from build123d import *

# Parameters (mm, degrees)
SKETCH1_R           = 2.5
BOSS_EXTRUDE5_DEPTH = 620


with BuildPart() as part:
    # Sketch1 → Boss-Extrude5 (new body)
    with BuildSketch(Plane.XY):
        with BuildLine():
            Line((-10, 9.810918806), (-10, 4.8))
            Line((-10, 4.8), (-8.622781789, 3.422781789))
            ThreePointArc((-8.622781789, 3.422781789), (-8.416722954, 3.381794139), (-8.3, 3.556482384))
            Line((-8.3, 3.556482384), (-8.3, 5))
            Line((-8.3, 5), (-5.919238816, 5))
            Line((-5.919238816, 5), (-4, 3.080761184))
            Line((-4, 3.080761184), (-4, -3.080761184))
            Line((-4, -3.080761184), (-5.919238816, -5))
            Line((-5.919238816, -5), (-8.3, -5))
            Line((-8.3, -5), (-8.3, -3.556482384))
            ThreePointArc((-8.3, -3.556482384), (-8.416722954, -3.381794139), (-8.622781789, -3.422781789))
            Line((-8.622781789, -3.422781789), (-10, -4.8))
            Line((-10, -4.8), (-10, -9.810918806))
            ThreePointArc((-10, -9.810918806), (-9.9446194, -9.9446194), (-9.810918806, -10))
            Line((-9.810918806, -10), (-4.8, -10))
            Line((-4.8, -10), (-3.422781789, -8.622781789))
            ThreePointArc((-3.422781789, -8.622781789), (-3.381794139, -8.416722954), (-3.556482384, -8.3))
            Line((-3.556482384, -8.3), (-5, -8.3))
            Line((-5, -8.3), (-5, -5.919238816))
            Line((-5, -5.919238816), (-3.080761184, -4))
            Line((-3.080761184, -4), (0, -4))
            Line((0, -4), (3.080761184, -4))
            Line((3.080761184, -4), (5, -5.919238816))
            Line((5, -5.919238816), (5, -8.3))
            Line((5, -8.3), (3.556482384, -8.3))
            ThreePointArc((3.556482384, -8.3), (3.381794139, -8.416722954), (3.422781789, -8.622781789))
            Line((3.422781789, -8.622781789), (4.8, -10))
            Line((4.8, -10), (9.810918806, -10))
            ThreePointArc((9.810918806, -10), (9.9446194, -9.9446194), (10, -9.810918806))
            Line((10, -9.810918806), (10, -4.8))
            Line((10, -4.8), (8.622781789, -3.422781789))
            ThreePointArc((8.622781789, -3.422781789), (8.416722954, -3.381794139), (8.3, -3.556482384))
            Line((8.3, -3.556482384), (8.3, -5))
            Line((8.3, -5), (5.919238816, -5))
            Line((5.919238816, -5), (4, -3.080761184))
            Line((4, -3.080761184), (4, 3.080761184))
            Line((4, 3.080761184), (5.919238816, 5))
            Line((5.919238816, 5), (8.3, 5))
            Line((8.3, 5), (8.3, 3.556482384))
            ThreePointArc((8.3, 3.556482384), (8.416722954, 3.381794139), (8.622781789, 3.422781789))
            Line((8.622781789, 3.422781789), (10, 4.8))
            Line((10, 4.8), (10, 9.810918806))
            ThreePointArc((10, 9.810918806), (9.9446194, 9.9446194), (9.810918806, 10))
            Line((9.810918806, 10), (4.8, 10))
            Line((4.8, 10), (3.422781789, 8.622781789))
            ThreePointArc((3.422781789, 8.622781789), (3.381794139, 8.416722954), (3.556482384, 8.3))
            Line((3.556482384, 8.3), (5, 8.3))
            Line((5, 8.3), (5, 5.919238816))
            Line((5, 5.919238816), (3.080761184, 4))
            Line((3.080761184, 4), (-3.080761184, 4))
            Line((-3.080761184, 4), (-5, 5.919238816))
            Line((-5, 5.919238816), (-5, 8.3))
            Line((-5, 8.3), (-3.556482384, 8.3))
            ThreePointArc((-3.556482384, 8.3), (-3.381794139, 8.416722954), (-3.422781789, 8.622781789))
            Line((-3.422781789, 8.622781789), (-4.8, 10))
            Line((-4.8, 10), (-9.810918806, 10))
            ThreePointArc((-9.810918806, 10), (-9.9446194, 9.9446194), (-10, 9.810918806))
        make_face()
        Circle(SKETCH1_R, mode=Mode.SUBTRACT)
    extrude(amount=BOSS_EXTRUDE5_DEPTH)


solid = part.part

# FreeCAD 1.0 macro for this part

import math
import FreeCAD as App
import Part
import Sketcher
Q = App.Units.Quantity

doc = App.newDocument("Part")
body = doc.addObject("PartDesign::Body", "Body")

sketch1 = doc.addObject("Sketcher::SketchObject", "Sketch")
body.addObject(sketch1)
sketch1.AttachmentSupport = (doc.XY_Plane, [""])
sketch1.MapMode = "FlatFace"
sketch1.addGeometry([
    Part.LineSegment(App.Vector(-10, 9.81, 0), App.Vector(-10, 4.8, 0)),
    Part.LineSegment(App.Vector(-10, 4.8, 0), App.Vector(-8.62, 3.42, 0)),
    Part.ArcOfCircle(Part.Circle(App.Vector(-8.49, 3.56, 0), App.Vector(0, 0, 1), 0.19), math.radians(-135), math.radians(0)),
    Part.LineSegment(App.Vector(-8.3, 3.56, 0), App.Vector(-8.3, 5, 0)),
    Part.LineSegment(App.Vector(-8.3, 5, 0), App.Vector(-5.92, 5, 0)),
    Part.LineSegment(App.Vector(-5.92, 5, 0), App.Vector(-4, 3.08, 0)),
    Part.LineSegment(App.Vector(-4, 3.08, 0), App.Vector(-4, -3.08, 0)),
    Part.LineSegment(App.Vector(-4, -3.08, 0), App.Vector(-5.92, -5, 0)),
    Part.LineSegment(App.Vector(-5.92, -5, 0), App.Vector(-8.3, -5, 0)),
    Part.LineSegment(App.Vector(-8.3, -5, 0), App.Vector(-8.3, -3.56, 0)),
    Part.ArcOfCircle(Part.Circle(App.Vector(-8.49, -3.56, 0), App.Vector(0, 0, 1), 0.19), math.radians(0), math.radians(135)),
    Part.LineSegment(App.Vector(-8.62, -3.42, 0), App.Vector(-10, -4.8, 0)),
    Part.LineSegment(App.Vector(-10, -4.8, 0), App.Vector(-10, -9.81, 0)),
    Part.ArcOfCircle(Part.Circle(App.Vector(-9.81, -9.81, 0), App.Vector(0, 0, 1), 0.19), math.radians(-180), math.radians(-90)),
    Part.LineSegment(App.Vector(-9.81, -10, 0), App.Vector(-4.8, -10, 0)),
    Part.LineSegment(App.Vector(-4.8, -10, 0), App.Vector(-3.42, -8.62, 0)),
    Part.ArcOfCircle(Part.Circle(App.Vector(-3.56, -8.49, 0), App.Vector(0, 0, 1), 0.19), math.radians(-45), math.radians(90)),
    Part.LineSegment(App.Vector(-3.56, -8.3, 0), App.Vector(-5, -8.3, 0)),
    Part.LineSegment(App.Vector(-5, -8.3, 0), App.Vector(-5, -5.92, 0)),
    Part.LineSegment(App.Vector(-5, -5.92, 0), App.Vector(-3.08, -4, 0)),
    Part.LineSegment(App.Vector(-3.08, -4, 0), App.Vector(3.08, -4, 0)),
    Part.LineSegment(App.Vector(3.08, -4, 0), App.Vector(5, -5.92, 0)),
    Part.LineSegment(App.Vector(5, -5.92, 0), App.Vector(5, -8.3, 0)),
    Part.LineSegment(App.Vector(5, -8.3, 0), App.Vector(3.56, -8.3, 0)),
    Part.ArcOfCircle(Part.Circle(App.Vector(3.56, -8.49, 0), App.Vector(0, 0, 1), 0.19), math.radians(90), math.radians(225)),
    Part.LineSegment(App.Vector(3.42, -8.62, 0), App.Vector(4.8, -10, 0)),
    Part.LineSegment(App.Vector(4.8, -10, 0), App.Vector(9.81, -10, 0)),
    Part.ArcOfCircle(Part.Circle(App.Vector(9.81, -9.81, 0), App.Vector(0, 0, 1), 0.19), math.radians(-90), math.radians(0)),
    Part.LineSegment(App.Vector(10, -9.81, 0), App.Vector(10, -4.8, 0)),
    Part.LineSegment(App.Vector(10, -4.8, 0), App.Vector(8.62, -3.42, 0)),
    Part.ArcOfCircle(Part.Circle(App.Vector(8.49, -3.56, 0), App.Vector(0, 0, 1), 0.19), math.radians(45), math.radians(180)),
    Part.LineSegment(App.Vector(8.3, -3.56, 0), App.Vector(8.3, -5, 0)),
    Part.LineSegment(App.Vector(8.3, -5, 0), App.Vector(5.92, -5, 0)),
    Part.LineSegment(App.Vector(5.92, -5, 0), App.Vector(4, -3.08, 0)),
    Part.LineSegment(App.Vector(4, -3.08, 0), App.Vector(4, 3.08, 0)),
    Part.LineSegment(App.Vector(4, 3.08, 0), App.Vector(5.92, 5, 0)),
    Part.LineSegment(App.Vector(5.92, 5, 0), App.Vector(8.3, 5, 0)),
    Part.LineSegment(App.Vector(8.3, 5, 0), App.Vector(8.3, 3.56, 0)),
    Part.ArcOfCircle(Part.Circle(App.Vector(8.49, 3.56, 0), App.Vector(0, 0, 1), 0.19), math.radians(-180), math.radians(-45)),
    Part.LineSegment(App.Vector(8.62, 3.42, 0), App.Vector(10, 4.8, 0)),
    Part.LineSegment(App.Vector(10, 4.8, 0), App.Vector(10, 9.81, 0)),
    Part.ArcOfCircle(Part.Circle(App.Vector(9.81, 9.81, 0), App.Vector(0, 0, 1), 0.19), math.radians(0), math.radians(90)),
    Part.LineSegment(App.Vector(9.81, 10, 0), App.Vector(4.8, 10, 0)),
    Part.LineSegment(App.Vector(4.8, 10, 0), App.Vector(3.42, 8.62, 0)),
    Part.ArcOfCircle(Part.Circle(App.Vector(3.56, 8.49, 0), App.Vector(0, 0, 1), 0.19), math.radians(135), math.radians(270)),
    Part.LineSegment(App.Vector(3.56, 8.3, 0), App.Vector(5, 8.3, 0)),
    Part.LineSegment(App.Vector(5, 8.3, 0), App.Vector(5, 5.92, 0)),
    Part.LineSegment(App.Vector(5, 5.92, 0), App.Vector(3.08, 4, 0)),
    Part.LineSegment(App.Vector(3.08, 4, 0), App.Vector(-3.08, 4, 0)),
    Part.LineSegment(App.Vector(-3.08, 4, 0), App.Vector(-5, 5.92, 0)),
    Part.LineSegment(App.Vector(-5, 5.92, 0), App.Vector(-5, 8.3, 0)),
    Part.LineSegment(App.Vector(-5, 8.3, 0), App.Vector(-3.56, 8.3, 0)),
    Part.ArcOfCircle(Part.Circle(App.Vector(-3.56, 8.49, 0), App.Vector(0, 0, 1), 0.19), math.radians(-90), math.radians(45)),
    Part.LineSegment(App.Vector(-3.42, 8.62, 0), App.Vector(-4.8, 10, 0)),
    Part.LineSegment(App.Vector(-4.8, 10, 0), App.Vector(-9.81, 10, 0)),
    Part.ArcOfCircle(Part.Circle(App.Vector(-9.81, 9.81, 0), App.Vector(0, 0, 1), 0.19), math.radians(90), math.radians(180)),
    Part.Circle(App.Vector(0, 0, 0), App.Vector(0, 0, 1), 2.5),
], False)
sketch1.addConstraint([
    Sketcher.Constraint("Coincident", 0, 2, 1, 1),
    Sketcher.Constraint("Tangent", 1, 2, 2, 1),
    Sketcher.Constraint("Tangent", 2, 2, 3, 1),
    Sketcher.Constraint("Coincident", 3, 2, 4, 1),
    Sketcher.Constraint("Coincident", 4, 2, 5, 1),
    Sketcher.Constraint("Coincident", 5, 2, 6, 1),
    Sketcher.Constraint("Coincident", 6, 2, 7, 1),
    Sketcher.Constraint("Coincident", 7, 2, 8, 1),
    Sketcher.Constraint("Coincident", 8, 2, 9, 1),
    Sketcher.Constraint("Tangent", 9, 2, 10, 1),
    Sketcher.Constraint("Tangent", 10, 2, 11, 1),
    Sketcher.Constraint("Coincident", 11, 2, 12, 1),
    Sketcher.Constraint("Tangent", 12, 2, 13, 1),
    Sketcher.Constraint("Tangent", 13, 2, 14, 1),
    Sketcher.Constraint("Coincident", 14, 2, 15, 1),
    Sketcher.Constraint("Tangent", 15, 2, 16, 1),
    Sketcher.Constraint("Tangent", 16, 2, 17, 1),
    Sketcher.Constraint("Coincident", 17, 2, 18, 1),
    Sketcher.Constraint("Coincident", 18, 2, 19, 1),
    Sketcher.Constraint("Coincident", 19, 2, 20, 1),
    Sketcher.Constraint("Coincident", 20, 2, 21, 1),
    Sketcher.Constraint("Coincident", 21, 2, 22, 1),
    Sketcher.Constraint("Coincident", 22, 2, 23, 1),
    Sketcher.Constraint("Tangent", 23, 2, 24, 1),
    Sketcher.Constraint("Tangent", 24, 2, 25, 1),
    Sketcher.Constraint("Coincident", 25, 2, 26, 1),
    Sketcher.Constraint("Tangent", 26, 2, 27, 1),
    Sketcher.Constraint("Tangent", 27, 2, 28, 1),
    Sketcher.Constraint("Coincident", 28, 2, 29, 1),
    Sketcher.Constraint("Tangent", 29, 2, 30, 1),
    Sketcher.Constraint("Tangent", 30, 2, 31, 1),
    Sketcher.Constraint("Coincident", 31, 2, 32, 1),
    Sketcher.Constraint("Coincident", 32, 2, 33, 1),
    Sketcher.Constraint("Coincident", 33, 2, 34, 1),
    Sketcher.Constraint("Coincident", 34, 2, 35, 1),
    Sketcher.Constraint("Coincident", 35, 2, 36, 1),
    Sketcher.Constraint("Coincident", 36, 2, 37, 1),
    Sketcher.Constraint("Tangent", 37, 2, 38, 1),
    Sketcher.Constraint("Tangent", 38, 2, 39, 1),
    Sketcher.Constraint("Coincident", 39, 2, 40, 1),
    Sketcher.Constraint("Tangent", 40, 2, 41, 1),
    Sketcher.Constraint("Tangent", 41, 2, 42, 1),
    Sketcher.Constraint("Coincident", 42, 2, 43, 1),
    Sketcher.Constraint("Tangent", 43, 2, 44, 1),
    Sketcher.Constraint("Tangent", 44, 2, 45, 1),
    Sketcher.Constraint("Coincident", 45, 2, 46, 1),
    Sketcher.Constraint("Coincident", 46, 2, 47, 1),
    Sketcher.Constraint("Coincident", 47, 2, 48, 1),
    Sketcher.Constraint("Coincident", 48, 2, 49, 1),
    Sketcher.Constraint("Coincident", 49, 2, 50, 1),
    Sketcher.Constraint("Coincident", 50, 2, 51, 1),
    Sketcher.Constraint("Tangent", 51, 2, 52, 1),
    Sketcher.Constraint("Tangent", 52, 2, 53, 1),
    Sketcher.Constraint("Coincident", 53, 2, 54, 1),
    Sketcher.Constraint("Tangent", 54, 2, 55, 1),
    Sketcher.Constraint("Tangent", 55, 2, 0, 1),
    Sketcher.Constraint("Vertical", 0),
    Sketcher.Constraint("Vertical", 3),
    Sketcher.Constraint("Horizontal", 4),
    Sketcher.Constraint("Vertical", 6),
    Sketcher.Constraint("Horizontal", 8),
    Sketcher.Constraint("Vertical", 9),
    Sketcher.Constraint("Vertical", 12),
    Sketcher.Constraint("Horizontal", 14),
    Sketcher.Constraint("Horizontal", 17),
    Sketcher.Constraint("Vertical", 18),
    Sketcher.Constraint("Horizontal", 20),
    Sketcher.Constraint("Vertical", 22),
    Sketcher.Constraint("Horizontal", 23),
    Sketcher.Constraint("Horizontal", 26),
    Sketcher.Constraint("Vertical", 28),
    Sketcher.Constraint("Vertical", 31),
    Sketcher.Constraint("Horizontal", 32),
    Sketcher.Constraint("Vertical", 34),
    Sketcher.Constraint("Horizontal", 36),
    Sketcher.Constraint("Vertical", 37),
    Sketcher.Constraint("Vertical", 40),
    Sketcher.Constraint("Horizontal", 42),
    Sketcher.Constraint("Horizontal", 45),
    Sketcher.Constraint("Vertical", 46),
    Sketcher.Constraint("Horizontal", 48),
    Sketcher.Constraint("Vertical", 50),
    Sketcher.Constraint("Horizontal", 51),
    Sketcher.Constraint("Horizontal", 54),
    Sketcher.Constraint("Coincident", 56, 3, -1, 1),
    Sketcher.Constraint("Equal", 2, 10),
    Sketcher.Constraint("Equal", 10, 13),
    Sketcher.Constraint("Equal", 13, 16),
    Sketcher.Constraint("Equal", 16, 24),
    Sketcher.Constraint("Equal", 24, 27),
    Sketcher.Constraint("Equal", 27, 30),
    Sketcher.Constraint("Equal", 30, 38),
    Sketcher.Constraint("Equal", 38, 41),
    Sketcher.Constraint("Equal", 41, 44),
    Sketcher.Constraint("Equal", 44, 52),
    Sketcher.Constraint("Equal", 52, 55),
    Sketcher.Constraint("Symmetric", 2, 3, 30, 3, -1, 1),
    Sketcher.Constraint("Symmetric", 10, 3, 38, 3, -1, 1),
    Sketcher.Constraint("Symmetric", 13, 3, 41, 3, -1, 1),
    Sketcher.Constraint("Symmetric", 16, 3, 44, 3, -1, 1),
    Sketcher.Constraint("Symmetric", 24, 3, 52, 3, -1, 1),
    Sketcher.Constraint("Symmetric", 27, 3, 55, 3, -1, 1),
    Sketcher.Constraint("Symmetric", 4, 2, 32, 2, -1, 1),
    Sketcher.Constraint("Symmetric", 5, 2, 33, 2, -1, 1),
    Sketcher.Constraint("Symmetric", 7, 2, 35, 2, -1, 1),
    Sketcher.Constraint("Symmetric", 18, 2, 46, 2, -1, 1),
    Sketcher.Constraint("Symmetric", 19, 2, 47, 2, -1, 1),
    Sketcher.Constraint("Symmetric", 21, 2, 49, 2, -1, 1),
    Sketcher.Constraint("Symmetric", 16, 3, 24, 3, -2),
    Sketcher.Constraint("Symmetric", 13, 3, 27, 3, -2),
    Sketcher.Constraint("Symmetric", 10, 3, 30, 3, -2),
    Sketcher.Constraint("Symmetric", 18, 2, 21, 2, -2),
    Sketcher.Constraint("Symmetric", 7, 2, 32, 2, -2),
    Sketcher.Constraint("Parallel", 1, 5),
    Sketcher.Constraint("Perpendicular", 5, 7),
    Sketcher.Constraint("Parallel", 7, 11),
    Sketcher.Constraint("Parallel", 11, 15),
    Sketcher.Constraint("Parallel", 15, 19),
    Sketcher.Constraint("Perpendicular", 19, 21),
    Sketcher.Constraint("Parallel", 21, 25),
    Sketcher.Constraint("Parallel", 25, 29),
    Sketcher.Constraint("Perpendicular", 33, 35),
    Sketcher.Constraint("Parallel", 35, 39),
    Sketcher.Constraint("Parallel", 39, 43),
    Sketcher.Constraint("Perpendicular", 47, 49),
    Sketcher.Constraint("Parallel", 49, 53),
    Sketcher.Constraint("Horizontal", 15, 2, 24, 2),
    Sketcher.Constraint("Equal", 54, 0),
    Sketcher.Constraint("Equal", 51, 3),
    Sketcher.Constraint("Equal", 48, 6),
    Sketcher.Constraint("Equal", 36, 18),
    Sketcher.Constraint("Equal", 11, 15),
    Sketcher.Constraint("Equal", 7, 19),
    Sketcher.Constraint("Diameter", 56, Q("5 mm")),
    Sketcher.Constraint("DistanceX", 0, 2, -1, 1, Q("10 mm")),
    Sketcher.Constraint("DistanceY", -1, 1, 3, 2, Q("5 mm")),
    Sketcher.Constraint("DistanceX", 5, 2, -1, 1, Q("4 mm")),
    Sketcher.Constraint("DistanceY", -1, 1, 0, 2, Q("4.8 mm")),
    Sketcher.Constraint("DistanceX", 2, 2, -1, 1, Q("8.3 mm")),
    Sketcher.Constraint("Radius", 2, Q("0.189081 mm")),
    Sketcher.Constraint("DistanceX", 4, 1, 4, 2, Q("2.380761 mm")),
])
pad1 = doc.addObject("PartDesign::Pad", "Pad")
body.addObject(pad1)
pad1.Profile = sketch1
pad1.Length = 620

doc.recompute()
